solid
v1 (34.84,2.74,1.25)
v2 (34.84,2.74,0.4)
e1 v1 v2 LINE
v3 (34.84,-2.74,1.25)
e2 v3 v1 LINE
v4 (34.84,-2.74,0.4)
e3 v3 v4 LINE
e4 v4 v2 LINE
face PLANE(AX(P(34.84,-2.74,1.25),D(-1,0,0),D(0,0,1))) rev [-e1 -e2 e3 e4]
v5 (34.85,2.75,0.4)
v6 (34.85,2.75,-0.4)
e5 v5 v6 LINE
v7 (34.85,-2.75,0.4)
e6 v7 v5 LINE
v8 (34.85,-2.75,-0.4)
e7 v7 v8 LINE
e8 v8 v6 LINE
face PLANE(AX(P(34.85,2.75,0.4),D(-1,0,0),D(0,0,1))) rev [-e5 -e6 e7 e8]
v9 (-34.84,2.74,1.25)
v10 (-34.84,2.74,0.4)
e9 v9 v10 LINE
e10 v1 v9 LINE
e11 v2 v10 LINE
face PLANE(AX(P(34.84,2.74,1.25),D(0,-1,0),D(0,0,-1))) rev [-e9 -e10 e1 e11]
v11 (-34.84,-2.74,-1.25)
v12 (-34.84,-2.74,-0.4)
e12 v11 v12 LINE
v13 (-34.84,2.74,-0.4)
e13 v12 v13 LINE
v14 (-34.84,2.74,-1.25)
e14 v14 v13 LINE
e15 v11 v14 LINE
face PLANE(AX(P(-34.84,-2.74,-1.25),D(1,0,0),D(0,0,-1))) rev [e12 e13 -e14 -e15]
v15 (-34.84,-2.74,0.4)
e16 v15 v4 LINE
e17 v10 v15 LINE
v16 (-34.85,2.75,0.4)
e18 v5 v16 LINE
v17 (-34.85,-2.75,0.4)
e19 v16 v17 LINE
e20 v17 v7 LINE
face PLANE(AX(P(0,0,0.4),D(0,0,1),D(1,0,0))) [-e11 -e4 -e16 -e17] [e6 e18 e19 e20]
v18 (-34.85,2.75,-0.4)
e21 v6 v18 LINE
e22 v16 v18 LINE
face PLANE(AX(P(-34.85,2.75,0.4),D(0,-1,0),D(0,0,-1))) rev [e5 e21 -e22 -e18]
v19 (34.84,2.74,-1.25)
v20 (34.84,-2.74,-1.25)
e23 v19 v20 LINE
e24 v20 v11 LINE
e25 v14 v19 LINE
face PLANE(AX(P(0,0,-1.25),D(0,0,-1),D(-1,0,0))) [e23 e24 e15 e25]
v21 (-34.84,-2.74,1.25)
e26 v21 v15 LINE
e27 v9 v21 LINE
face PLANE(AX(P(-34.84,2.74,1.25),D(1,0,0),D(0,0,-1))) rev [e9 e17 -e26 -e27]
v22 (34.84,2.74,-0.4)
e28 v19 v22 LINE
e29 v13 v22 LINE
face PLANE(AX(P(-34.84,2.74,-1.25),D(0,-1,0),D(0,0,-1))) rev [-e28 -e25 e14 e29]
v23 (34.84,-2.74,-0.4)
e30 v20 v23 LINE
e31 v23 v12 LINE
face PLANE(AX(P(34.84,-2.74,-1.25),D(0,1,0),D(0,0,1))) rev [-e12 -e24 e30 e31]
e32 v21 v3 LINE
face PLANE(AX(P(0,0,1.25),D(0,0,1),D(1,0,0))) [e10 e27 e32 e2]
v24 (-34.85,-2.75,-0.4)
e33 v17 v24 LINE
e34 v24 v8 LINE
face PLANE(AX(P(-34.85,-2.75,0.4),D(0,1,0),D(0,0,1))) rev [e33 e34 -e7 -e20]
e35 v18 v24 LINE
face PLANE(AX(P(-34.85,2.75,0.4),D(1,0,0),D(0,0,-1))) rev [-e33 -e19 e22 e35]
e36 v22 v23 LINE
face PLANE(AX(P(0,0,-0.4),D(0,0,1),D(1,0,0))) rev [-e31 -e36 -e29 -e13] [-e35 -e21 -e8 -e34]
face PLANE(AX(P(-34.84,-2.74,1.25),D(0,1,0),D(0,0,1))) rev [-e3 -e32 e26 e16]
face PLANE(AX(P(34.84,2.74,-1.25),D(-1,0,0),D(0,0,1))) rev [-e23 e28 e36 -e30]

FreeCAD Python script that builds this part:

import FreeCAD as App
import Part
import Sketcher


def add_polygon(sketch, points):
    """Adds a closed chain of lines whose ends are joined by coincident constraints."""
    first, n = sketch.GeometryCount, len(points)
    for a, b in zip(points, points[1:] + points[:1]):
        sketch.addGeometry(Part.LineSegment(App.Vector(*a, 0), App.Vector(*b, 0)), False)
    for i in range(n):
        sketch.addConstraint(Sketcher.Constraint("Coincident", first + i, 2, first + (i + 1) % n, 1))

doc = App.newDocument("Part")
body = doc.addObject("PartDesign::Body", "Body")

sketch1 = body.newObject("Sketcher::SketchObject", "Sketch")
sketch1.AttachmentSupport = (doc.getObject("XY_Plane"), [""])
sketch1.MapMode = "FlatFace"
add_polygon(sketch1, [(-35, 3), (-35, -3), (35, -3), (35, 3)])
sketch1.addConstraint([
    Sketcher.Constraint("Vertical", 0),
    Sketcher.Constraint("Horizontal", 1),
    Sketcher.Constraint("Vertical", 2),
    Sketcher.Constraint("Horizontal", 3),
    Sketcher.Constraint("Symmetric", 0, 2, 2, 2, -1, 1),
    Sketcher.Constraint("DistanceX", 1, 1, 1, 2, 69.7),
    Sketcher.Constraint("DistanceY", 0, 2, 0, 1, 5.5),
])
pad1 = body.newObject("PartDesign::Pad", "Pad")
pad1.Profile = sketch1
pad1.Length = 0.8
pad1.Midplane = True

sketch2 = body.newObject("Sketcher::SketchObject", "Sketch001")
sketch2.AttachmentSupport = (doc.getObject("XY_Plane"), [""])
sketch2.MapMode = "FlatFace"
sketch2.AttachmentOffset = App.Placement(App.Vector(0, 0, 0.4), App.Rotation())
add_polygon(sketch2, [(-35, 3), (-35, -3), (35, -3), (35, 3)])
sketch2.addConstraint([
    Sketcher.Constraint("Vertical", 0),
    Sketcher.Constraint("Horizontal", 1),
    Sketcher.Constraint("Vertical", 2),
    Sketcher.Constraint("Horizontal", 3),
    Sketcher.Constraint("Symmetric", 0, 2, 2, 2, -1, 1),
    Sketcher.Constraint("DistanceX", 1, 1, 1, 2, 69.68),
    Sketcher.Constraint("DistanceY", 0, 2, 0, 1, 5.48),
])
pad2 = body.newObject("PartDesign::Pad", "Pad001")
pad2.Profile = sketch2
pad2.Length = 0.85

sketch3 = body.newObject("Sketcher::SketchObject", "Sketch002")
sketch3.AttachmentSupport = (doc.getObject("XY_Plane"), [""])
sketch3.MapMode = "FlatFace"
sketch3.AttachmentOffset = App.Placement(App.Vector(0, 0, -0.4), App.Rotation())
add_polygon(sketch3, [(35, 3), (35, -3), (-35, -3), (-35, 3)])
sketch3.addConstraint([
    Sketcher.Constraint("Vertical", 0),
    Sketcher.Constraint("Horizontal", 1),
    Sketcher.Constraint("Vertical", 2),
    Sketcher.Constraint("Horizontal", 3),
    Sketcher.Constraint("Symmetric", 0, 2, 2, 2, -1, 1),
    Sketcher.Constraint("DistanceX", 1, 2, 1, 1, 69.68),
    Sketcher.Constraint("DistanceY", 0, 2, 0, 1, 5.48),
])
pad3 = body.newObject("PartDesign::Pad", "Pad002")
pad3.Profile = sketch3
pad3.Length = 0.85
pad3.Reversed = True

doc.recompute()
